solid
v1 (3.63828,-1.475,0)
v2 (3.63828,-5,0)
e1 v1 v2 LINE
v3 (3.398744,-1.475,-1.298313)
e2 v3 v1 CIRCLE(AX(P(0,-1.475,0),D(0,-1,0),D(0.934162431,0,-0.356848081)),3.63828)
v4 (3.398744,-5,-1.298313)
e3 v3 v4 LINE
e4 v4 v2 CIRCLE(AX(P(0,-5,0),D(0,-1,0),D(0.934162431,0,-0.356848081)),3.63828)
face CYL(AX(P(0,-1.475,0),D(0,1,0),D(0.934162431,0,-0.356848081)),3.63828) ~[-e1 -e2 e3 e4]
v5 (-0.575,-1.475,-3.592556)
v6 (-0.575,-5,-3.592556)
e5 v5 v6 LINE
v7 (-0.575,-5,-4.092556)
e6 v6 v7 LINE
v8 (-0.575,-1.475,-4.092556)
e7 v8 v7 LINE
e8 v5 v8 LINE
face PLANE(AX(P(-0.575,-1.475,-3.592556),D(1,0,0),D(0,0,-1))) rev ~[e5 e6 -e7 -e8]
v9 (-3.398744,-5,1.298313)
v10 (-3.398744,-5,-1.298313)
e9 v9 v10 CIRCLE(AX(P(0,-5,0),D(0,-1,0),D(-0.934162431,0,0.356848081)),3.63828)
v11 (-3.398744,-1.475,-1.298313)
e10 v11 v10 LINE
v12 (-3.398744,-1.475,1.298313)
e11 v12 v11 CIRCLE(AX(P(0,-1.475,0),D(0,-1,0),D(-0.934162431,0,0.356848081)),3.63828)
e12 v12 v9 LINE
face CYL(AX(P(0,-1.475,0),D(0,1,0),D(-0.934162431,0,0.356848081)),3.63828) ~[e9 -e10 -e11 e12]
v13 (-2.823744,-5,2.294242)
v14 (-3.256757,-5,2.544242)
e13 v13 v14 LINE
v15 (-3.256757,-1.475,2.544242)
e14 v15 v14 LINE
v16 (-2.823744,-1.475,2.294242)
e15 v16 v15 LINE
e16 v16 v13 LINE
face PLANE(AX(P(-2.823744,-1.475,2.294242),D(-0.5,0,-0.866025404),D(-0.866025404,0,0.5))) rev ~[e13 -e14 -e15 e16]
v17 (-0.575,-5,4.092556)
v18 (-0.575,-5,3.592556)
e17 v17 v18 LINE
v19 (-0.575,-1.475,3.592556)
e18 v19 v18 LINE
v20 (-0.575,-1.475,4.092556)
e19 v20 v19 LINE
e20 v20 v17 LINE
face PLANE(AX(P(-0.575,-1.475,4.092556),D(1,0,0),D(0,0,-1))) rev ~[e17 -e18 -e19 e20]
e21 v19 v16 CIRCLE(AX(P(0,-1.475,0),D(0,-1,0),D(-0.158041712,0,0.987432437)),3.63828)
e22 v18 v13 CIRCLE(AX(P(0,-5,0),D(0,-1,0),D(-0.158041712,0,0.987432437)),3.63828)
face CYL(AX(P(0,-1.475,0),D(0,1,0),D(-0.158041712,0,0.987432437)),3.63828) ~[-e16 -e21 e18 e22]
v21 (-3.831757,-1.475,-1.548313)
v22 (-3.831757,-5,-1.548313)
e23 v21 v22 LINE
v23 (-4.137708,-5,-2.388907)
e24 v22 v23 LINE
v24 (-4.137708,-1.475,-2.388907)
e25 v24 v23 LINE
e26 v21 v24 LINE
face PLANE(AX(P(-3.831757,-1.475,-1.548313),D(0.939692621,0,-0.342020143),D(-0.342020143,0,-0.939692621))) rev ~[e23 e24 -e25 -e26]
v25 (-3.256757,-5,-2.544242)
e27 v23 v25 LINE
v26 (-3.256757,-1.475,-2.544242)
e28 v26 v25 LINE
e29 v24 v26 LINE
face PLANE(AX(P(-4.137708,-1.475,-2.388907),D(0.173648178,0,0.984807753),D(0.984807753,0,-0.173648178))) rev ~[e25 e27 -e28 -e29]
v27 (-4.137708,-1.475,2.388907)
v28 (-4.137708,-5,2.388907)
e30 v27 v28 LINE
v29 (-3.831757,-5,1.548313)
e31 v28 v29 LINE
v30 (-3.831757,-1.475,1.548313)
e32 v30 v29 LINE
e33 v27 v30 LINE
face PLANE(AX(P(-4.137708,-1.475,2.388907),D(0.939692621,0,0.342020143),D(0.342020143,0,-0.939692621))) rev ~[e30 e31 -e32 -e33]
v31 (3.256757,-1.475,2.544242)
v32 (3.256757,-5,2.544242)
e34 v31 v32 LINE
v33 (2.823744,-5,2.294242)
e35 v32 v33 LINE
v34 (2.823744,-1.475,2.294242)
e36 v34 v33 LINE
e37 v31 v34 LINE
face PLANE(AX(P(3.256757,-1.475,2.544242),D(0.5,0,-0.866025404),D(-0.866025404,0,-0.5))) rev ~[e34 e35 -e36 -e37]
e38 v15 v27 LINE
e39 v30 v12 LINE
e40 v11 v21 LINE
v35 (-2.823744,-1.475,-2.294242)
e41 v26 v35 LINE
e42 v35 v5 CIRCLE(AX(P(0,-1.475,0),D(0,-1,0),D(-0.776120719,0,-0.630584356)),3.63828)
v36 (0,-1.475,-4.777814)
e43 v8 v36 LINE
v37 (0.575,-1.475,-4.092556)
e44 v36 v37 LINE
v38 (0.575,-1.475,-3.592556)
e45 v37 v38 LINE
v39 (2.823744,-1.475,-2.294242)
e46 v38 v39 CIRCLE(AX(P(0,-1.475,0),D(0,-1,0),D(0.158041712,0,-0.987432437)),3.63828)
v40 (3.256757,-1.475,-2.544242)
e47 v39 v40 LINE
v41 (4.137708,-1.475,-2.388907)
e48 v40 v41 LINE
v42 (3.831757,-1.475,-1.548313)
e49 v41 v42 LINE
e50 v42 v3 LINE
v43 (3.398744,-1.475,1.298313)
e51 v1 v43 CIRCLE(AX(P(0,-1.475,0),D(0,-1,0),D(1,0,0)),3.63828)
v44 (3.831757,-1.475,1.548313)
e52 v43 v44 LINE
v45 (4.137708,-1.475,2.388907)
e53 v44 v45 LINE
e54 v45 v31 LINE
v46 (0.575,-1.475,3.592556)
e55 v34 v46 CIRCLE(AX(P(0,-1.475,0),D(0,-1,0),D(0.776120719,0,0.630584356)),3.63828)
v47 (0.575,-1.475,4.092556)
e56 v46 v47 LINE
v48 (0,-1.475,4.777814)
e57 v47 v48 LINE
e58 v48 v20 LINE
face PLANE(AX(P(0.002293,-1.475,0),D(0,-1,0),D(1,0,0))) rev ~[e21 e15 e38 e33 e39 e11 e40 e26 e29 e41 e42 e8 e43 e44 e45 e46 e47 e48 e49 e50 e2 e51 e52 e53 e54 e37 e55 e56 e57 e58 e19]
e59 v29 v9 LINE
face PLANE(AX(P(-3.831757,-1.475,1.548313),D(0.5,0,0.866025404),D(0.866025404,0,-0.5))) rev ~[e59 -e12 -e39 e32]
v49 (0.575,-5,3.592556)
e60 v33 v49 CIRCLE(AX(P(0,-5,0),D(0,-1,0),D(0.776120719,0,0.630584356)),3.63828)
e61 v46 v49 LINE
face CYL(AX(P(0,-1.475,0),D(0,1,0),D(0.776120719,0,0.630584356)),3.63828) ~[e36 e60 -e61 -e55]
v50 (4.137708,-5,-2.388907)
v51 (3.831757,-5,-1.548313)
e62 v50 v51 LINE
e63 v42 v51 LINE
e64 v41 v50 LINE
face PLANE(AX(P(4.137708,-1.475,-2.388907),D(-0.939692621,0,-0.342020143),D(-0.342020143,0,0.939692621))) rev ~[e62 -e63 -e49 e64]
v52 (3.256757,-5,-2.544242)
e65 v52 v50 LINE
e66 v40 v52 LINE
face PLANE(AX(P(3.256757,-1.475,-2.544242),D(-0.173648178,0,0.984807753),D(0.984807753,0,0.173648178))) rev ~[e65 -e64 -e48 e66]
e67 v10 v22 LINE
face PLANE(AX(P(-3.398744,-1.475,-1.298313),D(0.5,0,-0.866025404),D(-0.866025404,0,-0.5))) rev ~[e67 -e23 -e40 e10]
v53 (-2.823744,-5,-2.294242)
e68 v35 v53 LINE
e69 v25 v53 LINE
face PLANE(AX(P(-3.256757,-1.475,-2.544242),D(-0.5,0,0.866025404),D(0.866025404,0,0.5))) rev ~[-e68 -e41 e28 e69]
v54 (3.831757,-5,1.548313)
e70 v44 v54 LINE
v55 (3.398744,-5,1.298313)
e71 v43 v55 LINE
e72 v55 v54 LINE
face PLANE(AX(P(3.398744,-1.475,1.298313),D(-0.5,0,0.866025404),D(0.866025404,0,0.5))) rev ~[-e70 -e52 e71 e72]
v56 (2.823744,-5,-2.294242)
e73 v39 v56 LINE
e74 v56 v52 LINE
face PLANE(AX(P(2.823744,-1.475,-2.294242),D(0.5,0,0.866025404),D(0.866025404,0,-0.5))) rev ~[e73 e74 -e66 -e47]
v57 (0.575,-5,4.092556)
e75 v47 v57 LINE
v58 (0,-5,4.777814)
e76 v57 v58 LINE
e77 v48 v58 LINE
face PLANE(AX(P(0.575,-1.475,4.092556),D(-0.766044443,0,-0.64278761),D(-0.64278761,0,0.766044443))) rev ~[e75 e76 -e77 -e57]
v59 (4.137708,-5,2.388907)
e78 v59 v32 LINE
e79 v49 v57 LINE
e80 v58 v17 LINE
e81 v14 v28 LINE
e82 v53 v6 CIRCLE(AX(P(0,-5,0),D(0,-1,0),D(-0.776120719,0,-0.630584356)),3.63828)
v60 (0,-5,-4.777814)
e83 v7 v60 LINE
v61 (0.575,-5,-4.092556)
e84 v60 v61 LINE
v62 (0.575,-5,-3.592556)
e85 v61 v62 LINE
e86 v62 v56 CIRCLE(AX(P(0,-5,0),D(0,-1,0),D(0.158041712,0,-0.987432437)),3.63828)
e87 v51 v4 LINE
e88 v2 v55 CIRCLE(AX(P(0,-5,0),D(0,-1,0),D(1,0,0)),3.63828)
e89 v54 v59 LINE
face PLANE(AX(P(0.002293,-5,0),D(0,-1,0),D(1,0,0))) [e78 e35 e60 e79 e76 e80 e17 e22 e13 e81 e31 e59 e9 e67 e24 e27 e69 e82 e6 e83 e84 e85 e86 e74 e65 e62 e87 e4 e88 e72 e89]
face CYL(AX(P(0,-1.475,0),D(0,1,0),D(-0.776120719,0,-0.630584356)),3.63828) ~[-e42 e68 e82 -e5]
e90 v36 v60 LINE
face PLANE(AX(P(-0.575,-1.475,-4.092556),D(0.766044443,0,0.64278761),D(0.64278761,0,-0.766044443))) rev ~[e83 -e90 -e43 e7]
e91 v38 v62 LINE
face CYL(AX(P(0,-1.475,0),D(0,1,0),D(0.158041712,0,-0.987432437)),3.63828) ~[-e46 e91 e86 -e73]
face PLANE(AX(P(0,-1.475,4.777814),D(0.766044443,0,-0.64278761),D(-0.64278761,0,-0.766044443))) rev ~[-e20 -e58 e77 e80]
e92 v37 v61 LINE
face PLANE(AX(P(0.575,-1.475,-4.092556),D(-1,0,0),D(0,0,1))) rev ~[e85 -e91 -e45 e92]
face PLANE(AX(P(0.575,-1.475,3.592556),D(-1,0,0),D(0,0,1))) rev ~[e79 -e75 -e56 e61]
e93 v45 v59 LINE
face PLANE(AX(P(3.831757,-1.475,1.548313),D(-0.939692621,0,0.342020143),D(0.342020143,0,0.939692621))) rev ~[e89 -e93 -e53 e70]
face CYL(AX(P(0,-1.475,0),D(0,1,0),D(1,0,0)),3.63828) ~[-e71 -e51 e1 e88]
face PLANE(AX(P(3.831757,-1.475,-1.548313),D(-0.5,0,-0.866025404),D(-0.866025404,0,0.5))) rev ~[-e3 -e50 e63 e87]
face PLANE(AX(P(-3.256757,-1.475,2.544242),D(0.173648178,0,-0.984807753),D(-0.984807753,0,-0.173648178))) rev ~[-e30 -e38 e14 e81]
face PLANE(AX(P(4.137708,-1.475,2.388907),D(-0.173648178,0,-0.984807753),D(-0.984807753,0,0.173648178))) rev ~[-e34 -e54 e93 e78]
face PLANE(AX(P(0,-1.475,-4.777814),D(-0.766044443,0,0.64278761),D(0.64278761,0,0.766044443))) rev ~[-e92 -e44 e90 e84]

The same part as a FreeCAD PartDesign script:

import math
import FreeCAD as App
import Part
import Sketcher

V = App.Vector
Q = App.Units.Quantity

doc = App.newDocument("Part")
params = doc.addObject("Spreadsheet::Sheet", "Params")
for row, (alias, value) in enumerate([
    ("sketch1_height", "0.5 mm"),
    ("sketch1_length", "0.5 mm"),
    ("pad1_length", "3.525 mm"),
], start=1):
    params.set(f"A{row}", alias)
    params.set(f"B{row}", "=" + value)
    params.setAlias(f"B{row}", alias)

body = doc.addObject("PartDesign::Body", "Body")

# Sketch on XZ plane
sketch1 = doc.addObject("Sketcher::SketchObject", "Sketch")
body.addObject(sketch1)
sketch1.AttachmentSupport = (doc.XZ_Plane, [""])
sketch1.MapMode = "FlatFace"
sketch1.AttachmentOffset = App.Placement(V(0, 0, 1.475), App.Rotation())
sketch1.addGeometry([
    Part.ArcOfCircle(Part.Circle(V(0, 0, 0), V(0, 0, 1), 3.6), math.radians(-21), math.radians(0)),  # 0
    Part.ArcOfCircle(Part.Circle(V(0, 0, 0), V(0, 0, 1), 3.6), math.radians(0), math.radians(21)),  # 1
    Part.LineSegment(V(3.4, 1.3, 0), V(3.8, 1.5, 0)),  # 2
    Part.LineSegment(V(3.8, 1.5, 0), V(4.1, 2.4, 0)),  # 3
    Part.LineSegment(V(4.1, 2.4, 0), V(3.3, 2.5, 0)),  # 4
    Part.LineSegment(V(3.3, 2.5, 0), V(2.8, 2.3, 0)),  # 5
    Part.ArcOfCircle(Part.Circle(V(0, 0, 0), V(0, 0, 1), 3.6), math.radians(39), math.radians(81)),  # 6
    Part.LineSegment(V(0.6, 3.6, 0), V(0.6, 4.1, 0)),  # 7
    Part.LineSegment(V(0.6, 4.1, 0), V(0, 4.8, 0)),  # 8
    Part.LineSegment(V(0, 4.8, 0), V(-0.6, 4.1, 0)),  # 9
    Part.LineSegment(V(-0.6, 4.1, 0), V(-0.6, 3.6, 0)),  # 10
    Part.ArcOfCircle(Part.Circle(V(0, 0, 0), V(0, 0, 1), 3.6), math.radians(99), math.radians(141)),  # 11
    Part.LineSegment(V(-2.8, 2.3, 0), V(-3.3, 2.5, 0)),  # 12
    Part.LineSegment(V(-3.3, 2.5, 0), V(-4.1, 2.4, 0)),  # 13
    Part.LineSegment(V(-4.1, 2.4, 0), V(-3.8, 1.5, 0)),  # 14
    Part.LineSegment(V(-3.8, 1.5, 0), V(-3.4, 1.3, 0)),  # 15
    Part.ArcOfCircle(Part.Circle(V(0, 0, 0), V(0, 0, 1), 3.6), math.radians(159), math.radians(201)),  # 16
    Part.LineSegment(V(-3.4, -1.3, 0), V(-3.8, -1.5, 0)),  # 17
    Part.LineSegment(V(-3.8, -1.5, 0), V(-4.1, -2.4, 0)),  # 18
    Part.LineSegment(V(-4.1, -2.4, 0), V(-3.3, -2.5, 0)),  # 19
    Part.LineSegment(V(-3.3, -2.5, 0), V(-2.8, -2.3, 0)),  # 20
    Part.ArcOfCircle(Part.Circle(V(0, 0, 0), V(0, 0, 1), 3.6), math.radians(-141), math.radians(-99)),  # 21
    Part.LineSegment(V(-0.6, -3.6, 0), V(-0.6, -4.1, 0)),  # 22
    Part.LineSegment(V(-0.6, -4.1, 0), V(0, -4.8, 0)),  # 23
    Part.LineSegment(V(0, -4.8, 0), V(0.6, -4.1, 0)),  # 24
    Part.LineSegment(V(0.6, -4.1, 0), V(0.6, -3.6, 0)),  # 25
    Part.ArcOfCircle(Part.Circle(V(0, 0, 0), V(0, 0, 1), 3.6), math.radians(-81), math.radians(-39)),  # 26
    Part.LineSegment(V(2.8, -2.3, 0), V(3.3, -2.5, 0)),  # 27
    Part.LineSegment(V(3.3, -2.5, 0), V(4.1, -2.4, 0)),  # 28
    Part.LineSegment(V(4.1, -2.4, 0), V(3.8, -1.5, 0)),  # 29
    Part.LineSegment(V(3.8, -1.5, 0), V(3.4, -1.3, 0)),  # 30
], False)
sketch1.addConstraint([
    Sketcher.Constraint("Tangent", 0, 2, 1, 1),
    Sketcher.Constraint("Coincident", 1, 2, 2, 1),
    Sketcher.Constraint("Coincident", 2, 2, 3, 1),
    Sketcher.Constraint("Coincident", 3, 2, 4, 1),
    Sketcher.Constraint("Coincident", 4, 2, 5, 1),
    Sketcher.Constraint("Coincident", 5, 2, 6, 1),
    Sketcher.Constraint("Coincident", 6, 2, 7, 1),
    Sketcher.Constraint("Coincident", 7, 2, 8, 1),
    Sketcher.Constraint("Coincident", 8, 2, 9, 1),
    Sketcher.Constraint("Coincident", 9, 2, 10, 1),
    Sketcher.Constraint("Coincident", 10, 2, 11, 1),
    Sketcher.Constraint("Coincident", 11, 2, 12, 1),
    Sketcher.Constraint("Coincident", 12, 2, 13, 1),
    Sketcher.Constraint("Coincident", 13, 2, 14, 1),
    Sketcher.Constraint("Coincident", 14, 2, 15, 1),
    Sketcher.Constraint("Coincident", 15, 2, 16, 1),
    Sketcher.Constraint("Coincident", 16, 2, 17, 1),
    Sketcher.Constraint("Coincident", 17, 2, 18, 1),
    Sketcher.Constraint("Coincident", 18, 2, 19, 1),
    Sketcher.Constraint("Coincident", 19, 2, 20, 1),
    Sketcher.Constraint("Coincident", 20, 2, 21, 1),
    Sketcher.Constraint("Coincident", 21, 2, 22, 1),
    Sketcher.Constraint("Coincident", 22, 2, 23, 1),
    Sketcher.Constraint("Coincident", 23, 2, 24, 1),
    Sketcher.Constraint("Coincident", 24, 2, 25, 1),
    Sketcher.Constraint("Coincident", 25, 2, 26, 1),
    Sketcher.Constraint("Coincident", 26, 2, 27, 1),
    Sketcher.Constraint("Coincident", 27, 2, 28, 1),
    Sketcher.Constraint("Coincident", 28, 2, 29, 1),
    Sketcher.Constraint("Coincident", 29, 2, 30, 1),
    Sketcher.Constraint("Coincident", 30, 2, 0, 1),
    Sketcher.Constraint("Vertical", 7),
    Sketcher.Constraint("Vertical", 10),
    Sketcher.Constraint("Vertical", 22),
    Sketcher.Constraint("Vertical", 25),
    Sketcher.Constraint("Coincident", 0, 3, -1, 1),
    Sketcher.Constraint("Coincident", 6, 3, -1, 1),
    Sketcher.Constraint("Coincident", 11, 3, -1, 1),
    Sketcher.Constraint("Coincident", 16, 3, -1, 1),
    Sketcher.Constraint("Coincident", 21, 3, -1, 1),
    Sketcher.Constraint("Coincident", 26, 3, -1, 1),
    Sketcher.Constraint("Equal", 0, 1),
    Sketcher.Constraint("Equal", 1, 6),
    Sketcher.Constraint("Equal", 6, 11),
    Sketcher.Constraint("Equal", 11, 16),
    Sketcher.Constraint("Equal", 16, 21),
    Sketcher.Constraint("Equal", 21, 26),
    Sketcher.Constraint("Symmetric", 2, 2, 17, 2, -1, 1),
    Sketcher.Constraint("Symmetric", 3, 2, 18, 2, -1, 1),
    Sketcher.Constraint("Symmetric", 4, 2, 19, 2, -1, 1),
    Sketcher.Constraint("Symmetric", 7, 2, 22, 2, -1, 1),
    Sketcher.Constraint("Symmetric", 8, 2, 23, 2, -1, 1),
    Sketcher.Constraint("Symmetric", 9, 2, 24, 2, -1, 1),
    Sketcher.Constraint("Symmetric", 12, 2, 27, 2, -1, 1),
    Sketcher.Constraint("Symmetric", 13, 2, 28, 2, -1, 1),
    Sketcher.Constraint("Symmetric", 14, 2, 29, 2, -1, 1),
    Sketcher.Constraint("Symmetric", 7, 2, 9, 2, -2),
    Sketcher.Constraint("Symmetric", 4, 2, 12, 2, -2),
    Sketcher.Constraint("Symmetric", 3, 2, 13, 2, -2),
    Sketcher.Constraint("Symmetric", 2, 2, 14, 2, -2),
    Sketcher.Constraint("PointOnObject", 0, 2, -1),
    Sketcher.Constraint("PointOnObject", 8, 2, -2),
    Sketcher.Constraint("Parallel", 2, 5),
    Sketcher.Constraint("Parallel", 12, 15),
    Sketcher.Constraint("Parallel", 5, 17),
    Sketcher.Constraint("Parallel", 17, 20),
    Sketcher.Constraint("Parallel", 15, 27),
    Sketcher.Constraint("Parallel", 27, 30),
    Sketcher.Constraint("Horizontal", 5, 2, 11, 2),
    Sketcher.Constraint("Equal", 3, 4),
    Sketcher.Constraint("Equal", 2, 5),
    Sketcher.Constraint("Equal", 4, 8),
    Sketcher.Constraint("Angle", 2, Q("30 deg")),
    Sketcher.Constraint("Angle", 3, Q("70 deg")),
    Sketcher.Constraint("Angle", 4, Q("170 deg")),
    Sketcher.Constraint("Angle", 8, Q("130 deg")),
    Sketcher.Constraint("DistanceY", 7, 1, 7, 2, Q("0.5 mm")),
    Sketcher.Constraint("Distance", 2, Q("0.5 mm")),
    Sketcher.Constraint("Radius", 0, Q("3.63828 mm")),
    Sketcher.Constraint("DistanceX", 9, 2, 7, 2, Q("1.15 mm")),
])
sketch1.setExpression("Constraints[76]", "Params.sketch1_height")
sketch1.setExpression("Constraints[77]", "Params.sketch1_length")
pad1 = doc.addObject("PartDesign::Pad", "Pad")
body.addObject(pad1)
pad1.Profile = sketch1
pad1.setExpression("Length", "Params.pad1_length")

doc.recompute()
